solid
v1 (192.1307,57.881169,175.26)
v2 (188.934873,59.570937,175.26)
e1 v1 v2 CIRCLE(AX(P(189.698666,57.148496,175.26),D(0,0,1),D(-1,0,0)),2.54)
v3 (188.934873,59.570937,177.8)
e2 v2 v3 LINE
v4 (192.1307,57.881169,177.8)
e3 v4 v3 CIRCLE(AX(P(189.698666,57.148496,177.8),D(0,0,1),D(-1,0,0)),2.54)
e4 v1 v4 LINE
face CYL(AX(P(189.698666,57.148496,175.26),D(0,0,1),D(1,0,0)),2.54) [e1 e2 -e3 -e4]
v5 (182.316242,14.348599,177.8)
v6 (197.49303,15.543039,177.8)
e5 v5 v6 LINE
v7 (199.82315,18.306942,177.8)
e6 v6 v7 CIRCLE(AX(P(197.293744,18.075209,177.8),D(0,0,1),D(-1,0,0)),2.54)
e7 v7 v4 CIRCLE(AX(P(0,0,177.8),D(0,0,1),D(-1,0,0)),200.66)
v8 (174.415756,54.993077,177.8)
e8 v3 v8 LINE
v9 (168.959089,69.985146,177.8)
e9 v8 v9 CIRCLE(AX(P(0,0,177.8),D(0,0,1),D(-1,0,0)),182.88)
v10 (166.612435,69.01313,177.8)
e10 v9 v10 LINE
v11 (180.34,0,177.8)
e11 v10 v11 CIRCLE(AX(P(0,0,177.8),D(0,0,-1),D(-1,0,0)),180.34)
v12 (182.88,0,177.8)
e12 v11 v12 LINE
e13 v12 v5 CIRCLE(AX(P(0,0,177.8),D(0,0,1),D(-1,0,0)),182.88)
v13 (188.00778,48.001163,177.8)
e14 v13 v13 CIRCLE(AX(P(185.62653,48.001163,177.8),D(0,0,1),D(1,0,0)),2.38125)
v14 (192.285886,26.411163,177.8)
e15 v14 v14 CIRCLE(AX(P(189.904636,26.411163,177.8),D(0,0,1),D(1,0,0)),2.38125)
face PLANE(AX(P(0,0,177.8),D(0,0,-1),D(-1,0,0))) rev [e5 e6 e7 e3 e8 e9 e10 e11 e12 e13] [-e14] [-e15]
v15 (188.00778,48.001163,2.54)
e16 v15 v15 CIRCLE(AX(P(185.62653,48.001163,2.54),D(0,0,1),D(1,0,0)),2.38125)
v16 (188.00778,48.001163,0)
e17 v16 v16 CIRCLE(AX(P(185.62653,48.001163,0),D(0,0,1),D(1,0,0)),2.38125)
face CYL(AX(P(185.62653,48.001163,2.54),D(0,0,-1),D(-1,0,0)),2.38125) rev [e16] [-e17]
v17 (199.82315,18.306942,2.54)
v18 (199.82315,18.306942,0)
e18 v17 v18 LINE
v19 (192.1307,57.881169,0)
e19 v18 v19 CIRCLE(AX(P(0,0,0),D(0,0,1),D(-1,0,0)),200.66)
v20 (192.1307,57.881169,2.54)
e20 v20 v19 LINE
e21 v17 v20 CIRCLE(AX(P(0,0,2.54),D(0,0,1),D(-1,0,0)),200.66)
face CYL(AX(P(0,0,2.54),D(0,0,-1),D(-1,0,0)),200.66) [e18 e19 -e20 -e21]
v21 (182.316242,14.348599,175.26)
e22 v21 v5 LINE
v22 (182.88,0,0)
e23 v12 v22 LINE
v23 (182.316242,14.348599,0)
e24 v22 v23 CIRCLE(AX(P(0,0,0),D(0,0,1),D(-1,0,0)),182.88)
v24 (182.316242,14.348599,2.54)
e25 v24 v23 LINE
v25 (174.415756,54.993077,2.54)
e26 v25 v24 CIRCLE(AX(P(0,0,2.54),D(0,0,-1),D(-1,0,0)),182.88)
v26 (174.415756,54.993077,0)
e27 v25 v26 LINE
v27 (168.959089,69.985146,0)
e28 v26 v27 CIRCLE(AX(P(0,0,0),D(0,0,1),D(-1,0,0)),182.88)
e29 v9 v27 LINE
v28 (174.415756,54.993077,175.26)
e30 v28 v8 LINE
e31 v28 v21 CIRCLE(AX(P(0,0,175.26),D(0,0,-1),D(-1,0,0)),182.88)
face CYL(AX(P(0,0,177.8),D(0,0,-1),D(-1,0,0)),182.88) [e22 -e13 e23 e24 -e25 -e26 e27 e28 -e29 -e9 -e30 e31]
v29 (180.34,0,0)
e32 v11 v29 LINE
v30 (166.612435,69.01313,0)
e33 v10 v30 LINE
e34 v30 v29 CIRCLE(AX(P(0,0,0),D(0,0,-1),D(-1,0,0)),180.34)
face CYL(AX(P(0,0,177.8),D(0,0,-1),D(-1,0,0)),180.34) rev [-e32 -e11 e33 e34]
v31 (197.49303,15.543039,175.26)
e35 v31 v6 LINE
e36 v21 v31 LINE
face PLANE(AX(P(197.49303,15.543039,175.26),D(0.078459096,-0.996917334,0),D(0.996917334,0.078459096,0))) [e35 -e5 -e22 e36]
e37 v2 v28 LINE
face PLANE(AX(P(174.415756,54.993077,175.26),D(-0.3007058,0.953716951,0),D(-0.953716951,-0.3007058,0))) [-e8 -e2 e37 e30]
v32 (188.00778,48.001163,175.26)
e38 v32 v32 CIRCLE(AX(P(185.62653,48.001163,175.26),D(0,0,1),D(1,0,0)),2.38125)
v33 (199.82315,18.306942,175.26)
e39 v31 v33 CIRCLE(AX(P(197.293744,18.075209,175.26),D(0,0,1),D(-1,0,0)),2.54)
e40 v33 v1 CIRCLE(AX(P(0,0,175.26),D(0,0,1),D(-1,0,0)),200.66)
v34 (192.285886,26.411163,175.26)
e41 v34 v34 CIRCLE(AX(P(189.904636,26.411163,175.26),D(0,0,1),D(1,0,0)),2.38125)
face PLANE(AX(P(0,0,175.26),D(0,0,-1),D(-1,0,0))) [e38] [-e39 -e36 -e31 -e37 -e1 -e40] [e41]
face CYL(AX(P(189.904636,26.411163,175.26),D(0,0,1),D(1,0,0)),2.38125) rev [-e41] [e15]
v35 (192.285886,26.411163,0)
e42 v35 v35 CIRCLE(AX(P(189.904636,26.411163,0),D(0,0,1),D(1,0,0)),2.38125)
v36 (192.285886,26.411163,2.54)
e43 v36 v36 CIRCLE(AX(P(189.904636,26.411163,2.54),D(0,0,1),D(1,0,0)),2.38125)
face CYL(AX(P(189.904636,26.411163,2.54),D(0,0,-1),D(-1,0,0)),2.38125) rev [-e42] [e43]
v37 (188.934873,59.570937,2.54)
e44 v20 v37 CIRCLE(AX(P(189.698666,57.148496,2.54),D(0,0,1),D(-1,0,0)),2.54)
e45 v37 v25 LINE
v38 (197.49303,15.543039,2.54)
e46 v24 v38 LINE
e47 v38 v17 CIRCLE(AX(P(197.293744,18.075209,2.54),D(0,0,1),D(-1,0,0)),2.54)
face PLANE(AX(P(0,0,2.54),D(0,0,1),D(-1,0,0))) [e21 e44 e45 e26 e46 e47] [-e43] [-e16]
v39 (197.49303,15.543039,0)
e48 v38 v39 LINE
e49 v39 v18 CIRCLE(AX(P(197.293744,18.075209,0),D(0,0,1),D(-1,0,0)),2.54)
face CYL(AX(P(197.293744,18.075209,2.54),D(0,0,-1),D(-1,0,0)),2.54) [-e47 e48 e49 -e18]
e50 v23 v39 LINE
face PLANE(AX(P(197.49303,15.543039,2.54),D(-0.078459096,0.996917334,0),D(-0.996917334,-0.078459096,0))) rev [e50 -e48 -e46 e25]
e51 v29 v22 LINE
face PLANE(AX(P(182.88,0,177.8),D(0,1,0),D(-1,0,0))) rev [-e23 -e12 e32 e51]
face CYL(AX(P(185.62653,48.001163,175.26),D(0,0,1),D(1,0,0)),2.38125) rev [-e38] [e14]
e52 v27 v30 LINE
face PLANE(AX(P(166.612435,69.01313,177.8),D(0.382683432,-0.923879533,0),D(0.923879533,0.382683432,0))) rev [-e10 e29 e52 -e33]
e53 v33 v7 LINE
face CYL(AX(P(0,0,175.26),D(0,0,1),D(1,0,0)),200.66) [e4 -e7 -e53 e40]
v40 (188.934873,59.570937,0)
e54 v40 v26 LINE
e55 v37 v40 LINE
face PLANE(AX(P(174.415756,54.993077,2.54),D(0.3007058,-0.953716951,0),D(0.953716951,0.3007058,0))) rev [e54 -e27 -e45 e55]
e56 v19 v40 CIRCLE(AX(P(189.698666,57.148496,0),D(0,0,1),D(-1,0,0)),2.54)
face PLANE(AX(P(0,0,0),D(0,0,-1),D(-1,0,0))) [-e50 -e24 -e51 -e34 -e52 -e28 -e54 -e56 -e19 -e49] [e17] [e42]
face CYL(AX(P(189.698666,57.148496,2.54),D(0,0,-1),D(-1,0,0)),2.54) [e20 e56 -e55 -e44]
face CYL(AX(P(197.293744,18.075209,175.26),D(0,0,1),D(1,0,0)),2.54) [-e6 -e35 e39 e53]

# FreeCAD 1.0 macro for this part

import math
import FreeCAD as App
import Part
import Sketcher

V = App.Vector
Q = App.Units.Quantity

doc = App.newDocument("Part")
body = doc.addObject("PartDesign::Body", "Body")

sketch1 = body.newObject("Sketcher::SketchObject", "Sketch")
sketch1.AttachmentSupport = (doc.getObject("XY_Plane"), [""])
sketch1.MapMode = "FlatFace"
sketch1.addGeometry(Part.LineSegment(V(168.959089, 69.985146, 0), V(166.612435, 69.01313, 0)), False)
sketch1.addGeometry(Part.ArcOfCircle(Part.Circle(V(0, 0, 0), V(0, 0, 1), 180.34), math.radians(0), math.radians(22.5)), False)
sketch1.addGeometry(Part.LineSegment(V(180.34, 0, 0), V(182.88, 0, 0)), False)
sketch1.addGeometry(Part.ArcOfCircle(Part.Circle(V(0, 0, 0), V(0, 0, 1), 182.88), math.radians(0), math.radians(22.5)), False)
sketch1.addConstraint(Sketcher.Constraint("Coincident", 0, 2, 1, 2))
sketch1.addConstraint(Sketcher.Constraint("Coincident", 1, 1, 2, 1))
sketch1.addConstraint(Sketcher.Constraint("Coincident", 2, 2, 3, 1))
sketch1.addConstraint(Sketcher.Constraint("Coincident", 3, 2, 0, 1))
sketch1.addConstraint(Sketcher.Constraint("Horizontal", 2))
sketch1.addConstraint(Sketcher.Constraint("Coincident", 1, 3, -1, 1))
sketch1.addConstraint(Sketcher.Constraint("Coincident", 3, 3, -1, 1))
sketch1.addConstraint(Sketcher.Constraint("PointOnObject", 1, 1, -1))
sketch1.addConstraint(Sketcher.Constraint("Radius", 1, Q("7.1 in")))
sketch1.addConstraint(Sketcher.Constraint("Radius", 3, Q("7.2 in")))
sketch1.addConstraint(Sketcher.Constraint("Angle", 0, Q("-157.5 deg")))
sketch1.addConstraint(Sketcher.Constraint("DistanceY", -1, 1, 0, 2, 69.01313))
pad1 = body.newObject("PartDesign::Pad", "Pad")
pad1.Profile = sketch1
pad1.Length = Q("7 in")

sketch2 = body.newObject("Sketcher::SketchObject", "Sketch001")
sketch2.AttachmentSupport = (doc.getObject("XY_Plane"), [""])
sketch2.MapMode = "FlatFace"
sketch2.AttachmentOffset = App.Placement(V(0, 0, 7 * 25.4), App.Rotation())
sketch2.addGeometry(Part.LineSegment(V(188.934873, 59.570937, 0), V(174.415756, 54.993077, 0)), False)
sketch2.addGeometry(Part.ArcOfCircle(Part.Circle(V(0, 0, 0), V(0, 0, 1), 182.88), math.radians(4.5), math.radians(17.5)), False)
sketch2.addGeometry(Part.LineSegment(V(182.316242, 14.348599, 0), V(197.49303, 15.543039, 0)), False)
sketch2.addGeometry(Part.ArcOfCircle(Part.Circle(V(197.293744, 18.075209, 0), V(0, 0, 1), 2.54), math.radians(-85.5), math.radians(5.234581)), False)
sketch2.addGeometry(Part.ArcOfCircle(Part.Circle(V(0, 0, 0), V(0, 0, 1), 200.66), math.radians(5.234581), math.radians(16.765419)), False)
sketch2.addGeometry(Part.ArcOfCircle(Part.Circle(V(189.698666, 57.148496, 0), V(0, 0, 1), 2.54), math.radians(16.765419), math.radians(107.5)), False)
sketch2.addGeometry(Part.Circle(V(189.904636, 26.411163, 0), V(0, 0, 1), 2.38125), False)
sketch2.addGeometry(Part.Circle(V(185.62653, 48.001163, 0), V(0, 0, 1), 2.38125), False)
sketch2.addConstraint(Sketcher.Constraint("Coincident", 0, 2, 1, 2))
sketch2.addConstraint(Sketcher.Constraint("Coincident", 1, 1, 2, 1))
sketch2.addConstraint(Sketcher.Constraint("Tangent", 2, 2, 3, 1))
sketch2.addConstraint(Sketcher.Constraint("Tangent", 3, 2, 4, 1))
sketch2.addConstraint(Sketcher.Constraint("Tangent", 4, 2, 5, 1))
sketch2.addConstraint(Sketcher.Constraint("Tangent", 5, 2, 0, 1))
sketch2.addConstraint(Sketcher.Constraint("Coincident", 1, 3, -1, 1))
sketch2.addConstraint(Sketcher.Constraint("Coincident", 4, 3, -1, 1))
sketch2.addConstraint(Sketcher.Constraint("Equal", 3, 5))
sketch2.addConstraint(Sketcher.Constraint("Equal", 6, 7))
sketch2.addConstraint(Sketcher.Constraint("Equal", 0, 2))
sketch2.addConstraint(Sketcher.Constraint("Radius", 1, Q("7.2 in")))
sketch2.addConstraint(Sketcher.Constraint("Radius", 3, Q("0.1 in")))
sketch2.addConstraint(Sketcher.Constraint("Radius", 4, Q("7.9 in")))
sketch2.addConstraint(Sketcher.Constraint("Diameter", 6, Q("0.1875 in")))
sketch2.addConstraint(Sketcher.Constraint("Angle", 0, Q("-162.5 deg")))
sketch2.addConstraint(Sketcher.Constraint("Angle", 2, Q("4.5 deg")))
sketch2.addConstraint(Sketcher.Constraint("DistanceY", 6, 3, 7, 3, Q("0.85 in")))
sketch2.addConstraint(Sketcher.Constraint("DistanceY", -1, 1, 1, 1, 14.348599))
sketch2.addConstraint(Sketcher.Constraint("DistanceX", 7, 3, 2, 2, 11.8665))
sketch2.addConstraint(Sketcher.Constraint("DistanceX", 5, 3, 6, 3, 0.20597))
sketch2.addConstraint(Sketcher.Constraint("DistanceY", 3, 2, 6, 3, 8.104221))
pad2 = body.newObject("PartDesign::Pad", "Pad001")
pad2.Profile = sketch2
pad2.Length = Q("0.1 in")
pad2.Reversed = True
doc.recompute()

datumplane = body.newObject("PartDesign::Plane", "DatumPlane")
datumplane.AttachmentSupport = (doc.getObject("XY_Plane"), [""])
datumplane.MapMode = "FlatFace"
datumplane.AttachmentOffset = App.Placement(V(0, 0, 3.5 * 25.4), App.Rotation())
mirrored = body.newObject("PartDesign::Mirrored", "Mirrored")
mirrored.Originals = [pad2]
mirrored.MirrorPlane = (datumplane, [""])
body.Tip = mirrored

doc.recompute()
